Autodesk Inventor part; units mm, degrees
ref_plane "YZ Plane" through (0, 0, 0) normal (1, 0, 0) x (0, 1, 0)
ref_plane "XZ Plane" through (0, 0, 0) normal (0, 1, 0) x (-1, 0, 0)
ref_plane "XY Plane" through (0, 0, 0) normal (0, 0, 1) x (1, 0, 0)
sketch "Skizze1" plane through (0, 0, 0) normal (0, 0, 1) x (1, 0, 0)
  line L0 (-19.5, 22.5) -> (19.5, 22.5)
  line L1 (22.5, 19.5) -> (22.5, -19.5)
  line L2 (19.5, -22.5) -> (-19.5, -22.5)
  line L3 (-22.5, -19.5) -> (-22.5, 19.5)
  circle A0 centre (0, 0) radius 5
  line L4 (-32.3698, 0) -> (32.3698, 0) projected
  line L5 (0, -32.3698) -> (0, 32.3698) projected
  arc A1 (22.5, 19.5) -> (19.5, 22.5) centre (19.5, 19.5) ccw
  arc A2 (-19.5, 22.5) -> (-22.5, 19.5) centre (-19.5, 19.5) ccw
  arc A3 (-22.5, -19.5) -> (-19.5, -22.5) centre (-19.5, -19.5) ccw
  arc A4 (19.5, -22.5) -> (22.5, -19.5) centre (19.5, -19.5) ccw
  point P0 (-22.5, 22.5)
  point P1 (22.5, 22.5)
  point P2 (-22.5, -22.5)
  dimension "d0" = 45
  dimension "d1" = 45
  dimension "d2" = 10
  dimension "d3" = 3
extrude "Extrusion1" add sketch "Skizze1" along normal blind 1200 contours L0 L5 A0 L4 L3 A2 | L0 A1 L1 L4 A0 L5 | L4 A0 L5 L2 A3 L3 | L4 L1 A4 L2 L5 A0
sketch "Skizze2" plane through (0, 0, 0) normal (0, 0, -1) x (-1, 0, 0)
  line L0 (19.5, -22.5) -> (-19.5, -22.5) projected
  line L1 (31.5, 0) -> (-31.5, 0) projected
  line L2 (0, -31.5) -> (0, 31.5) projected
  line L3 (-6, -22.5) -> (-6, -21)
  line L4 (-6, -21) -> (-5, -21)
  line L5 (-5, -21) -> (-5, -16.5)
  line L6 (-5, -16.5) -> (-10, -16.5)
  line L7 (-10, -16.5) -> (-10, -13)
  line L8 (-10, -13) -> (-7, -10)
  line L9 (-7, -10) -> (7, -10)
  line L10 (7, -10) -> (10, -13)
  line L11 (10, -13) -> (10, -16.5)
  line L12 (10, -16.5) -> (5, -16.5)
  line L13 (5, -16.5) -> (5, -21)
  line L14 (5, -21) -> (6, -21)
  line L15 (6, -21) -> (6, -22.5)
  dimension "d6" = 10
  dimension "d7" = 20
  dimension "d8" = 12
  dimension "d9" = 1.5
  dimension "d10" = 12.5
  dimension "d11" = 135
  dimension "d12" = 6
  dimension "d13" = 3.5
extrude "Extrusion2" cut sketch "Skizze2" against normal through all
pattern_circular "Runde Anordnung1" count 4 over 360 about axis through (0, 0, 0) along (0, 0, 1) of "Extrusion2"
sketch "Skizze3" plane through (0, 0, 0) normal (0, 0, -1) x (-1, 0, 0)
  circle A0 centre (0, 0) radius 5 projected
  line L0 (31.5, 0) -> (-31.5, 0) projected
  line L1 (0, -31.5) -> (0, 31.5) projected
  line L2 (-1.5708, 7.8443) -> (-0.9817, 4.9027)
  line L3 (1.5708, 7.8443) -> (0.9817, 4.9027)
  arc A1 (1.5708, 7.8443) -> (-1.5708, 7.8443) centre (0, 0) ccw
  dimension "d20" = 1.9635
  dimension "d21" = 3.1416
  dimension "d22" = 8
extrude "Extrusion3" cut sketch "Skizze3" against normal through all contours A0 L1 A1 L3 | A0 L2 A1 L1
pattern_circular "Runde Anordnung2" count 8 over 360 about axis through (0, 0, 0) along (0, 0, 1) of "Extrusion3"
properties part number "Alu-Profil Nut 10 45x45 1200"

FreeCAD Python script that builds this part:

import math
import FreeCAD as App
import Part
import Sketcher
from FreeCAD import Vector

doc = App.newDocument("Part")
body = doc.addObject("PartDesign::Body", "Body")

sketch1 = body.newObject("Sketcher::SketchObject", "Sketch")
sketch1.AttachmentSupport = (doc.getObject("XY_Plane"), [""])
sketch1.MapMode = "FlatFace"
sketch1.addGeometry(Part.ArcOfCircle(Part.Circle(Vector(-19.5, 19.5, 0), Vector(0, 0, 1), 3), math.radians(90), math.radians(180)), False)
sketch1.addGeometry(Part.LineSegment(Vector(-22.5, 19.5, 0), Vector(-22.5, -19.5, 0)), False)
sketch1.addGeometry(Part.ArcOfCircle(Part.Circle(Vector(-19.5, -19.5, 0), Vector(0, 0, 1), 3), math.radians(180), math.radians(270)), False)
sketch1.addGeometry(Part.LineSegment(Vector(-19.5, -22.5, 0), Vector(19.5, -22.5, 0)), False)
sketch1.addGeometry(Part.ArcOfCircle(Part.Circle(Vector(19.5, -19.5, 0), Vector(0, 0, 1), 3), math.radians(-90), math.radians(0)), False)
sketch1.addGeometry(Part.LineSegment(Vector(22.5, -19.5, 0), Vector(22.5, 19.5, 0)), False)
sketch1.addGeometry(Part.ArcOfCircle(Part.Circle(Vector(19.5, 19.5, 0), Vector(0, 0, 1), 3), math.radians(0), math.radians(90)), False)
sketch1.addGeometry(Part.LineSegment(Vector(19.5, 22.5, 0), Vector(-19.5, 22.5, 0)), False)
sketch1.addGeometry(Part.Circle(Vector(0, 0, 0), Vector(0, 0, 1), 5), False)
sketch1.addConstraint(Sketcher.Constraint("Tangent", 0, 2, 1, 1))
sketch1.addConstraint(Sketcher.Constraint("Tangent", 1, 2, 2, 1))
sketch1.addConstraint(Sketcher.Constraint("Tangent", 2, 2, 3, 1))
sketch1.addConstraint(Sketcher.Constraint("Tangent", 3, 2, 4, 1))
sketch1.addConstraint(Sketcher.Constraint("Tangent", 4, 2, 5, 1))
sketch1.addConstraint(Sketcher.Constraint("Tangent", 5, 2, 6, 1))
sketch1.addConstraint(Sketcher.Constraint("Tangent", 6, 2, 7, 1))
sketch1.addConstraint(Sketcher.Constraint("Tangent", 7, 2, 0, 1))
sketch1.addConstraint(Sketcher.Constraint("Vertical", 1))
sketch1.addConstraint(Sketcher.Constraint("Horizontal", 3))
sketch1.addConstraint(Sketcher.Constraint("Vertical", 5))
sketch1.addConstraint(Sketcher.Constraint("Horizontal", 7))
sketch1.addConstraint(Sketcher.Constraint("Coincident", 8, 3, -1, 1))
sketch1.addConstraint(Sketcher.Constraint("Equal", 0, 2))
sketch1.addConstraint(Sketcher.Constraint("Equal", 2, 4))
sketch1.addConstraint(Sketcher.Constraint("Equal", 4, 6))
sketch1.addConstraint(Sketcher.Constraint("Symmetric", 0, 3, 4, 3, -1, 1))
sketch1.addConstraint(Sketcher.Constraint("Equal", 7, 1))
sketch1.addConstraint(Sketcher.Constraint("Diameter", 8, 10.0))
sketch1.addConstraint(Sketcher.Constraint("Radius", 0, 3.0))
sketch1.addConstraint(Sketcher.Constraint("DistanceX", 3, 1, 3, 2, 39.0))
pad1 = body.newObject("PartDesign::Pad", "Pad")
pad1.Profile = sketch1
pad1.Length = 1200

sketch2 = body.newObject("Sketcher::SketchObject", "Sketch001")
sketch2.AttachmentSupport = (doc.getObject("XY_Plane"), [""])
sketch2.MapMode = "FlatFace"
sketch2.addGeometry(Part.LineSegment(Vector(-6, -22.5, 0), Vector(-6, -21, 0)), False)
sketch2.addGeometry(Part.LineSegment(Vector(-6, -21, 0), Vector(-5, -21, 0)), False)
sketch2.addGeometry(Part.LineSegment(Vector(-5, -21, 0), Vector(-5, -16.5, 0)), False)
sketch2.addGeometry(Part.LineSegment(Vector(-5, -16.5, 0), Vector(-10, -16.5, 0)), False)
sketch2.addGeometry(Part.LineSegment(Vector(-10, -16.5, 0), Vector(-10, -13, 0)), False)
sketch2.addGeometry(Part.LineSegment(Vector(-10, -13, 0), Vector(-7, -10, 0)), False)
sketch2.addGeometry(Part.LineSegment(Vector(-7, -10, 0), Vector(7, -10, 0)), False)
sketch2.addGeometry(Part.LineSegment(Vector(7, -10, 0), Vector(10, -13, 0)), False)
sketch2.addGeometry(Part.LineSegment(Vector(10, -13, 0), Vector(10, -16.5, 0)), False)
sketch2.addGeometry(Part.LineSegment(Vector(10, -16.5, 0), Vector(5, -16.5, 0)), False)
sketch2.addGeometry(Part.LineSegment(Vector(5, -16.5, 0), Vector(5, -21, 0)), False)
sketch2.addGeometry(Part.LineSegment(Vector(5, -21, 0), Vector(6, -21, 0)), False)
sketch2.addGeometry(Part.LineSegment(Vector(6, -21, 0), Vector(6, -22.5, 0)), False)
sketch2.addGeometry(Part.LineSegment(Vector(6, -22.5, 0), Vector(-6, -22.5, 0)), False)
sketch2.addConstraint(Sketcher.Constraint("Coincident", 0, 2, 1, 1))
sketch2.addConstraint(Sketcher.Constraint("Coincident", 1, 2, 2, 1))
sketch2.addConstraint(Sketcher.Constraint("Coincident", 2, 2, 3, 1))
sketch2.addConstraint(Sketcher.Constraint("Coincident", 3, 2, 4, 1))
sketch2.addConstraint(Sketcher.Constraint("Coincident", 4, 2, 5, 1))
sketch2.addConstraint(Sketcher.Constraint("Coincident", 5, 2, 6, 1))
sketch2.addConstraint(Sketcher.Constraint("Coincident", 6, 2, 7, 1))
sketch2.addConstraint(Sketcher.Constraint("Coincident", 7, 2, 8, 1))
sketch2.addConstraint(Sketcher.Constraint("Coincident", 8, 2, 9, 1))
sketch2.addConstraint(Sketcher.Constraint("Coincident", 9, 2, 10, 1))
sketch2.addConstraint(Sketcher.Constraint("Coincident", 10, 2, 11, 1))
sketch2.addConstraint(Sketcher.Constraint("Coincident", 11, 2, 12, 1))
sketch2.addConstraint(Sketcher.Constraint("Coincident", 12, 2, 13, 1))
sketch2.addConstraint(Sketcher.Constraint("Coincident", 13, 2, 0, 1))
sketch2.addConstraint(Sketcher.Constraint("Vertical", 0))
sketch2.addConstraint(Sketcher.Constraint("Horizontal", 1))
sketch2.addConstraint(Sketcher.Constraint("Vertical", 2))
sketch2.addConstraint(Sketcher.Constraint("Horizontal", 3))
sketch2.addConstraint(Sketcher.Constraint("Vertical", 4))
sketch2.addConstraint(Sketcher.Constraint("Horizontal", 6))
sketch2.addConstraint(Sketcher.Constraint("Vertical", 8))
sketch2.addConstraint(Sketcher.Constraint("Horizontal", 9))
sketch2.addConstraint(Sketcher.Constraint("Vertical", 10))
sketch2.addConstraint(Sketcher.Constraint("Horizontal", 11))
sketch2.addConstraint(Sketcher.Constraint("Vertical", 12))
sketch2.addConstraint(Sketcher.Constraint("Horizontal", 13))
sketch2.addConstraint(Sketcher.Constraint("Symmetric", 4, 2, 7, 2, -2))
sketch2.addConstraint(Sketcher.Constraint("Symmetric", 2, 2, 9, 2, -2))
sketch2.addConstraint(Sketcher.Constraint("Symmetric", 0, 2, 11, 2, -2))
sketch2.addConstraint(Sketcher.Constraint("Perpendicular", 5, 7))
sketch2.addConstraint(Sketcher.Constraint("Equal", 5, 7))
sketch2.addConstraint(Sketcher.Constraint("DistanceX", 13, 2, 13, 1, 12.0))
sketch2.addConstraint(Sketcher.Constraint("DistanceY", 0, 1, 0, 2, 1.5))
sketch2.addConstraint(Sketcher.Constraint("DistanceY", 4, 1, 4, 2, 3.5))
sketch2.addConstraint(Sketcher.Constraint("DistanceX", 3, 2, -1, 1, 10.0))
sketch2.addConstraint(Sketcher.Constraint("DistanceY", 5, 2, -1, 1, 10.0))
sketch2.addConstraint(Sketcher.Constraint("DistanceX", 2, 2, 6, 2, 12.0))
sketch2.addConstraint(Sketcher.Constraint("DistanceX", 2, 2, 9, 2, 10.0))
sketch2.addConstraint(Sketcher.Constraint("DistanceY", 12, 2, 9, 2, 6.0))
pocket1 = body.newObject("PartDesign::Pocket", "Pocket")
pocket1.Profile = sketch2
pocket1.Type = "ThroughAll"
pocket1.Reversed = True
doc.recompute()

polarpattern = body.newObject("PartDesign::PolarPattern", "PolarPattern")
polarpattern.Originals = [pocket1]
polarpattern.Axis = (doc.getObject("Z_Axis"), [""])
polarpattern.Angle = 360
polarpattern.Occurrences = 4
body.Tip = polarpattern

sketch3 = body.newObject("Sketcher::SketchObject", "Sketch002")
sketch3.AttachmentSupport = (doc.getObject("XY_Plane"), [""])
sketch3.MapMode = "FlatFace"
sketch3.addGeometry(Part.LineSegment(Vector(-1, 4.9, 0), Vector(-1.6, 7.8, 0)), False)
sketch3.addGeometry(Part.ArcOfCircle(Part.Circle(Vector(0, 0, 0), Vector(0, 0, 1), 8), math.radians(79), math.radians(101)), False)
sketch3.addGeometry(Part.LineSegment(Vector(1.6, 7.8, 0), Vector(1, 4.9, 0)), False)
sketch3.addGeometry(Part.ArcOfCircle(Part.Circle(Vector(0, 0, 0), Vector(0, 0, 1), 5), math.radians(79), math.radians(101)), False)
sketch3.addConstraint(Sketcher.Constraint("Coincident", 0, 2, 1, 2))
sketch3.addConstraint(Sketcher.Constraint("Coincident", 1, 1, 2, 1))
sketch3.addConstraint(Sketcher.Constraint("Coincident", 2, 2, 3, 1))
sketch3.addConstraint(Sketcher.Constraint("Coincident", 3, 2, 0, 1))
sketch3.addConstraint(Sketcher.Constraint("Coincident", 1, 3, -1, 1))
sketch3.addConstraint(Sketcher.Constraint("Coincident", 3, 3, -1, 1))
sketch3.addConstraint(Sketcher.Constraint("Horizontal", 0, 2, 1, 1))
sketch3.addConstraint(Sketcher.Constraint("Horizontal", 2, 2, 3, 2))
sketch3.addConstraint(Sketcher.Constraint("Radius", 1, 8.0))
sketch3.addConstraint(Sketcher.Constraint("Radius", 3, 5.0))
sketch3.addConstraint(Sketcher.Constraint("DistanceX", 0, 2, 1, 1, 3.1416))
sketch3.addConstraint(Sketcher.Constraint("DistanceX", 3, 2, 2, 2, 1.9634))
pocket2 = body.newObject("PartDesign::Pocket", "Pocket001")
pocket2.Profile = sketch3
pocket2.Type = "ThroughAll"
pocket2.Reversed = True
doc.recompute()

polarpattern2 = body.newObject("PartDesign::PolarPattern", "PolarPattern001")
polarpattern2.Originals = [pocket2]
polarpattern2.Axis = (doc.getObject("Z_Axis"), [""])
polarpattern2.Angle = 360
polarpattern2.Occurrences = 8
body.Tip = polarpattern2

doc.recompute()
